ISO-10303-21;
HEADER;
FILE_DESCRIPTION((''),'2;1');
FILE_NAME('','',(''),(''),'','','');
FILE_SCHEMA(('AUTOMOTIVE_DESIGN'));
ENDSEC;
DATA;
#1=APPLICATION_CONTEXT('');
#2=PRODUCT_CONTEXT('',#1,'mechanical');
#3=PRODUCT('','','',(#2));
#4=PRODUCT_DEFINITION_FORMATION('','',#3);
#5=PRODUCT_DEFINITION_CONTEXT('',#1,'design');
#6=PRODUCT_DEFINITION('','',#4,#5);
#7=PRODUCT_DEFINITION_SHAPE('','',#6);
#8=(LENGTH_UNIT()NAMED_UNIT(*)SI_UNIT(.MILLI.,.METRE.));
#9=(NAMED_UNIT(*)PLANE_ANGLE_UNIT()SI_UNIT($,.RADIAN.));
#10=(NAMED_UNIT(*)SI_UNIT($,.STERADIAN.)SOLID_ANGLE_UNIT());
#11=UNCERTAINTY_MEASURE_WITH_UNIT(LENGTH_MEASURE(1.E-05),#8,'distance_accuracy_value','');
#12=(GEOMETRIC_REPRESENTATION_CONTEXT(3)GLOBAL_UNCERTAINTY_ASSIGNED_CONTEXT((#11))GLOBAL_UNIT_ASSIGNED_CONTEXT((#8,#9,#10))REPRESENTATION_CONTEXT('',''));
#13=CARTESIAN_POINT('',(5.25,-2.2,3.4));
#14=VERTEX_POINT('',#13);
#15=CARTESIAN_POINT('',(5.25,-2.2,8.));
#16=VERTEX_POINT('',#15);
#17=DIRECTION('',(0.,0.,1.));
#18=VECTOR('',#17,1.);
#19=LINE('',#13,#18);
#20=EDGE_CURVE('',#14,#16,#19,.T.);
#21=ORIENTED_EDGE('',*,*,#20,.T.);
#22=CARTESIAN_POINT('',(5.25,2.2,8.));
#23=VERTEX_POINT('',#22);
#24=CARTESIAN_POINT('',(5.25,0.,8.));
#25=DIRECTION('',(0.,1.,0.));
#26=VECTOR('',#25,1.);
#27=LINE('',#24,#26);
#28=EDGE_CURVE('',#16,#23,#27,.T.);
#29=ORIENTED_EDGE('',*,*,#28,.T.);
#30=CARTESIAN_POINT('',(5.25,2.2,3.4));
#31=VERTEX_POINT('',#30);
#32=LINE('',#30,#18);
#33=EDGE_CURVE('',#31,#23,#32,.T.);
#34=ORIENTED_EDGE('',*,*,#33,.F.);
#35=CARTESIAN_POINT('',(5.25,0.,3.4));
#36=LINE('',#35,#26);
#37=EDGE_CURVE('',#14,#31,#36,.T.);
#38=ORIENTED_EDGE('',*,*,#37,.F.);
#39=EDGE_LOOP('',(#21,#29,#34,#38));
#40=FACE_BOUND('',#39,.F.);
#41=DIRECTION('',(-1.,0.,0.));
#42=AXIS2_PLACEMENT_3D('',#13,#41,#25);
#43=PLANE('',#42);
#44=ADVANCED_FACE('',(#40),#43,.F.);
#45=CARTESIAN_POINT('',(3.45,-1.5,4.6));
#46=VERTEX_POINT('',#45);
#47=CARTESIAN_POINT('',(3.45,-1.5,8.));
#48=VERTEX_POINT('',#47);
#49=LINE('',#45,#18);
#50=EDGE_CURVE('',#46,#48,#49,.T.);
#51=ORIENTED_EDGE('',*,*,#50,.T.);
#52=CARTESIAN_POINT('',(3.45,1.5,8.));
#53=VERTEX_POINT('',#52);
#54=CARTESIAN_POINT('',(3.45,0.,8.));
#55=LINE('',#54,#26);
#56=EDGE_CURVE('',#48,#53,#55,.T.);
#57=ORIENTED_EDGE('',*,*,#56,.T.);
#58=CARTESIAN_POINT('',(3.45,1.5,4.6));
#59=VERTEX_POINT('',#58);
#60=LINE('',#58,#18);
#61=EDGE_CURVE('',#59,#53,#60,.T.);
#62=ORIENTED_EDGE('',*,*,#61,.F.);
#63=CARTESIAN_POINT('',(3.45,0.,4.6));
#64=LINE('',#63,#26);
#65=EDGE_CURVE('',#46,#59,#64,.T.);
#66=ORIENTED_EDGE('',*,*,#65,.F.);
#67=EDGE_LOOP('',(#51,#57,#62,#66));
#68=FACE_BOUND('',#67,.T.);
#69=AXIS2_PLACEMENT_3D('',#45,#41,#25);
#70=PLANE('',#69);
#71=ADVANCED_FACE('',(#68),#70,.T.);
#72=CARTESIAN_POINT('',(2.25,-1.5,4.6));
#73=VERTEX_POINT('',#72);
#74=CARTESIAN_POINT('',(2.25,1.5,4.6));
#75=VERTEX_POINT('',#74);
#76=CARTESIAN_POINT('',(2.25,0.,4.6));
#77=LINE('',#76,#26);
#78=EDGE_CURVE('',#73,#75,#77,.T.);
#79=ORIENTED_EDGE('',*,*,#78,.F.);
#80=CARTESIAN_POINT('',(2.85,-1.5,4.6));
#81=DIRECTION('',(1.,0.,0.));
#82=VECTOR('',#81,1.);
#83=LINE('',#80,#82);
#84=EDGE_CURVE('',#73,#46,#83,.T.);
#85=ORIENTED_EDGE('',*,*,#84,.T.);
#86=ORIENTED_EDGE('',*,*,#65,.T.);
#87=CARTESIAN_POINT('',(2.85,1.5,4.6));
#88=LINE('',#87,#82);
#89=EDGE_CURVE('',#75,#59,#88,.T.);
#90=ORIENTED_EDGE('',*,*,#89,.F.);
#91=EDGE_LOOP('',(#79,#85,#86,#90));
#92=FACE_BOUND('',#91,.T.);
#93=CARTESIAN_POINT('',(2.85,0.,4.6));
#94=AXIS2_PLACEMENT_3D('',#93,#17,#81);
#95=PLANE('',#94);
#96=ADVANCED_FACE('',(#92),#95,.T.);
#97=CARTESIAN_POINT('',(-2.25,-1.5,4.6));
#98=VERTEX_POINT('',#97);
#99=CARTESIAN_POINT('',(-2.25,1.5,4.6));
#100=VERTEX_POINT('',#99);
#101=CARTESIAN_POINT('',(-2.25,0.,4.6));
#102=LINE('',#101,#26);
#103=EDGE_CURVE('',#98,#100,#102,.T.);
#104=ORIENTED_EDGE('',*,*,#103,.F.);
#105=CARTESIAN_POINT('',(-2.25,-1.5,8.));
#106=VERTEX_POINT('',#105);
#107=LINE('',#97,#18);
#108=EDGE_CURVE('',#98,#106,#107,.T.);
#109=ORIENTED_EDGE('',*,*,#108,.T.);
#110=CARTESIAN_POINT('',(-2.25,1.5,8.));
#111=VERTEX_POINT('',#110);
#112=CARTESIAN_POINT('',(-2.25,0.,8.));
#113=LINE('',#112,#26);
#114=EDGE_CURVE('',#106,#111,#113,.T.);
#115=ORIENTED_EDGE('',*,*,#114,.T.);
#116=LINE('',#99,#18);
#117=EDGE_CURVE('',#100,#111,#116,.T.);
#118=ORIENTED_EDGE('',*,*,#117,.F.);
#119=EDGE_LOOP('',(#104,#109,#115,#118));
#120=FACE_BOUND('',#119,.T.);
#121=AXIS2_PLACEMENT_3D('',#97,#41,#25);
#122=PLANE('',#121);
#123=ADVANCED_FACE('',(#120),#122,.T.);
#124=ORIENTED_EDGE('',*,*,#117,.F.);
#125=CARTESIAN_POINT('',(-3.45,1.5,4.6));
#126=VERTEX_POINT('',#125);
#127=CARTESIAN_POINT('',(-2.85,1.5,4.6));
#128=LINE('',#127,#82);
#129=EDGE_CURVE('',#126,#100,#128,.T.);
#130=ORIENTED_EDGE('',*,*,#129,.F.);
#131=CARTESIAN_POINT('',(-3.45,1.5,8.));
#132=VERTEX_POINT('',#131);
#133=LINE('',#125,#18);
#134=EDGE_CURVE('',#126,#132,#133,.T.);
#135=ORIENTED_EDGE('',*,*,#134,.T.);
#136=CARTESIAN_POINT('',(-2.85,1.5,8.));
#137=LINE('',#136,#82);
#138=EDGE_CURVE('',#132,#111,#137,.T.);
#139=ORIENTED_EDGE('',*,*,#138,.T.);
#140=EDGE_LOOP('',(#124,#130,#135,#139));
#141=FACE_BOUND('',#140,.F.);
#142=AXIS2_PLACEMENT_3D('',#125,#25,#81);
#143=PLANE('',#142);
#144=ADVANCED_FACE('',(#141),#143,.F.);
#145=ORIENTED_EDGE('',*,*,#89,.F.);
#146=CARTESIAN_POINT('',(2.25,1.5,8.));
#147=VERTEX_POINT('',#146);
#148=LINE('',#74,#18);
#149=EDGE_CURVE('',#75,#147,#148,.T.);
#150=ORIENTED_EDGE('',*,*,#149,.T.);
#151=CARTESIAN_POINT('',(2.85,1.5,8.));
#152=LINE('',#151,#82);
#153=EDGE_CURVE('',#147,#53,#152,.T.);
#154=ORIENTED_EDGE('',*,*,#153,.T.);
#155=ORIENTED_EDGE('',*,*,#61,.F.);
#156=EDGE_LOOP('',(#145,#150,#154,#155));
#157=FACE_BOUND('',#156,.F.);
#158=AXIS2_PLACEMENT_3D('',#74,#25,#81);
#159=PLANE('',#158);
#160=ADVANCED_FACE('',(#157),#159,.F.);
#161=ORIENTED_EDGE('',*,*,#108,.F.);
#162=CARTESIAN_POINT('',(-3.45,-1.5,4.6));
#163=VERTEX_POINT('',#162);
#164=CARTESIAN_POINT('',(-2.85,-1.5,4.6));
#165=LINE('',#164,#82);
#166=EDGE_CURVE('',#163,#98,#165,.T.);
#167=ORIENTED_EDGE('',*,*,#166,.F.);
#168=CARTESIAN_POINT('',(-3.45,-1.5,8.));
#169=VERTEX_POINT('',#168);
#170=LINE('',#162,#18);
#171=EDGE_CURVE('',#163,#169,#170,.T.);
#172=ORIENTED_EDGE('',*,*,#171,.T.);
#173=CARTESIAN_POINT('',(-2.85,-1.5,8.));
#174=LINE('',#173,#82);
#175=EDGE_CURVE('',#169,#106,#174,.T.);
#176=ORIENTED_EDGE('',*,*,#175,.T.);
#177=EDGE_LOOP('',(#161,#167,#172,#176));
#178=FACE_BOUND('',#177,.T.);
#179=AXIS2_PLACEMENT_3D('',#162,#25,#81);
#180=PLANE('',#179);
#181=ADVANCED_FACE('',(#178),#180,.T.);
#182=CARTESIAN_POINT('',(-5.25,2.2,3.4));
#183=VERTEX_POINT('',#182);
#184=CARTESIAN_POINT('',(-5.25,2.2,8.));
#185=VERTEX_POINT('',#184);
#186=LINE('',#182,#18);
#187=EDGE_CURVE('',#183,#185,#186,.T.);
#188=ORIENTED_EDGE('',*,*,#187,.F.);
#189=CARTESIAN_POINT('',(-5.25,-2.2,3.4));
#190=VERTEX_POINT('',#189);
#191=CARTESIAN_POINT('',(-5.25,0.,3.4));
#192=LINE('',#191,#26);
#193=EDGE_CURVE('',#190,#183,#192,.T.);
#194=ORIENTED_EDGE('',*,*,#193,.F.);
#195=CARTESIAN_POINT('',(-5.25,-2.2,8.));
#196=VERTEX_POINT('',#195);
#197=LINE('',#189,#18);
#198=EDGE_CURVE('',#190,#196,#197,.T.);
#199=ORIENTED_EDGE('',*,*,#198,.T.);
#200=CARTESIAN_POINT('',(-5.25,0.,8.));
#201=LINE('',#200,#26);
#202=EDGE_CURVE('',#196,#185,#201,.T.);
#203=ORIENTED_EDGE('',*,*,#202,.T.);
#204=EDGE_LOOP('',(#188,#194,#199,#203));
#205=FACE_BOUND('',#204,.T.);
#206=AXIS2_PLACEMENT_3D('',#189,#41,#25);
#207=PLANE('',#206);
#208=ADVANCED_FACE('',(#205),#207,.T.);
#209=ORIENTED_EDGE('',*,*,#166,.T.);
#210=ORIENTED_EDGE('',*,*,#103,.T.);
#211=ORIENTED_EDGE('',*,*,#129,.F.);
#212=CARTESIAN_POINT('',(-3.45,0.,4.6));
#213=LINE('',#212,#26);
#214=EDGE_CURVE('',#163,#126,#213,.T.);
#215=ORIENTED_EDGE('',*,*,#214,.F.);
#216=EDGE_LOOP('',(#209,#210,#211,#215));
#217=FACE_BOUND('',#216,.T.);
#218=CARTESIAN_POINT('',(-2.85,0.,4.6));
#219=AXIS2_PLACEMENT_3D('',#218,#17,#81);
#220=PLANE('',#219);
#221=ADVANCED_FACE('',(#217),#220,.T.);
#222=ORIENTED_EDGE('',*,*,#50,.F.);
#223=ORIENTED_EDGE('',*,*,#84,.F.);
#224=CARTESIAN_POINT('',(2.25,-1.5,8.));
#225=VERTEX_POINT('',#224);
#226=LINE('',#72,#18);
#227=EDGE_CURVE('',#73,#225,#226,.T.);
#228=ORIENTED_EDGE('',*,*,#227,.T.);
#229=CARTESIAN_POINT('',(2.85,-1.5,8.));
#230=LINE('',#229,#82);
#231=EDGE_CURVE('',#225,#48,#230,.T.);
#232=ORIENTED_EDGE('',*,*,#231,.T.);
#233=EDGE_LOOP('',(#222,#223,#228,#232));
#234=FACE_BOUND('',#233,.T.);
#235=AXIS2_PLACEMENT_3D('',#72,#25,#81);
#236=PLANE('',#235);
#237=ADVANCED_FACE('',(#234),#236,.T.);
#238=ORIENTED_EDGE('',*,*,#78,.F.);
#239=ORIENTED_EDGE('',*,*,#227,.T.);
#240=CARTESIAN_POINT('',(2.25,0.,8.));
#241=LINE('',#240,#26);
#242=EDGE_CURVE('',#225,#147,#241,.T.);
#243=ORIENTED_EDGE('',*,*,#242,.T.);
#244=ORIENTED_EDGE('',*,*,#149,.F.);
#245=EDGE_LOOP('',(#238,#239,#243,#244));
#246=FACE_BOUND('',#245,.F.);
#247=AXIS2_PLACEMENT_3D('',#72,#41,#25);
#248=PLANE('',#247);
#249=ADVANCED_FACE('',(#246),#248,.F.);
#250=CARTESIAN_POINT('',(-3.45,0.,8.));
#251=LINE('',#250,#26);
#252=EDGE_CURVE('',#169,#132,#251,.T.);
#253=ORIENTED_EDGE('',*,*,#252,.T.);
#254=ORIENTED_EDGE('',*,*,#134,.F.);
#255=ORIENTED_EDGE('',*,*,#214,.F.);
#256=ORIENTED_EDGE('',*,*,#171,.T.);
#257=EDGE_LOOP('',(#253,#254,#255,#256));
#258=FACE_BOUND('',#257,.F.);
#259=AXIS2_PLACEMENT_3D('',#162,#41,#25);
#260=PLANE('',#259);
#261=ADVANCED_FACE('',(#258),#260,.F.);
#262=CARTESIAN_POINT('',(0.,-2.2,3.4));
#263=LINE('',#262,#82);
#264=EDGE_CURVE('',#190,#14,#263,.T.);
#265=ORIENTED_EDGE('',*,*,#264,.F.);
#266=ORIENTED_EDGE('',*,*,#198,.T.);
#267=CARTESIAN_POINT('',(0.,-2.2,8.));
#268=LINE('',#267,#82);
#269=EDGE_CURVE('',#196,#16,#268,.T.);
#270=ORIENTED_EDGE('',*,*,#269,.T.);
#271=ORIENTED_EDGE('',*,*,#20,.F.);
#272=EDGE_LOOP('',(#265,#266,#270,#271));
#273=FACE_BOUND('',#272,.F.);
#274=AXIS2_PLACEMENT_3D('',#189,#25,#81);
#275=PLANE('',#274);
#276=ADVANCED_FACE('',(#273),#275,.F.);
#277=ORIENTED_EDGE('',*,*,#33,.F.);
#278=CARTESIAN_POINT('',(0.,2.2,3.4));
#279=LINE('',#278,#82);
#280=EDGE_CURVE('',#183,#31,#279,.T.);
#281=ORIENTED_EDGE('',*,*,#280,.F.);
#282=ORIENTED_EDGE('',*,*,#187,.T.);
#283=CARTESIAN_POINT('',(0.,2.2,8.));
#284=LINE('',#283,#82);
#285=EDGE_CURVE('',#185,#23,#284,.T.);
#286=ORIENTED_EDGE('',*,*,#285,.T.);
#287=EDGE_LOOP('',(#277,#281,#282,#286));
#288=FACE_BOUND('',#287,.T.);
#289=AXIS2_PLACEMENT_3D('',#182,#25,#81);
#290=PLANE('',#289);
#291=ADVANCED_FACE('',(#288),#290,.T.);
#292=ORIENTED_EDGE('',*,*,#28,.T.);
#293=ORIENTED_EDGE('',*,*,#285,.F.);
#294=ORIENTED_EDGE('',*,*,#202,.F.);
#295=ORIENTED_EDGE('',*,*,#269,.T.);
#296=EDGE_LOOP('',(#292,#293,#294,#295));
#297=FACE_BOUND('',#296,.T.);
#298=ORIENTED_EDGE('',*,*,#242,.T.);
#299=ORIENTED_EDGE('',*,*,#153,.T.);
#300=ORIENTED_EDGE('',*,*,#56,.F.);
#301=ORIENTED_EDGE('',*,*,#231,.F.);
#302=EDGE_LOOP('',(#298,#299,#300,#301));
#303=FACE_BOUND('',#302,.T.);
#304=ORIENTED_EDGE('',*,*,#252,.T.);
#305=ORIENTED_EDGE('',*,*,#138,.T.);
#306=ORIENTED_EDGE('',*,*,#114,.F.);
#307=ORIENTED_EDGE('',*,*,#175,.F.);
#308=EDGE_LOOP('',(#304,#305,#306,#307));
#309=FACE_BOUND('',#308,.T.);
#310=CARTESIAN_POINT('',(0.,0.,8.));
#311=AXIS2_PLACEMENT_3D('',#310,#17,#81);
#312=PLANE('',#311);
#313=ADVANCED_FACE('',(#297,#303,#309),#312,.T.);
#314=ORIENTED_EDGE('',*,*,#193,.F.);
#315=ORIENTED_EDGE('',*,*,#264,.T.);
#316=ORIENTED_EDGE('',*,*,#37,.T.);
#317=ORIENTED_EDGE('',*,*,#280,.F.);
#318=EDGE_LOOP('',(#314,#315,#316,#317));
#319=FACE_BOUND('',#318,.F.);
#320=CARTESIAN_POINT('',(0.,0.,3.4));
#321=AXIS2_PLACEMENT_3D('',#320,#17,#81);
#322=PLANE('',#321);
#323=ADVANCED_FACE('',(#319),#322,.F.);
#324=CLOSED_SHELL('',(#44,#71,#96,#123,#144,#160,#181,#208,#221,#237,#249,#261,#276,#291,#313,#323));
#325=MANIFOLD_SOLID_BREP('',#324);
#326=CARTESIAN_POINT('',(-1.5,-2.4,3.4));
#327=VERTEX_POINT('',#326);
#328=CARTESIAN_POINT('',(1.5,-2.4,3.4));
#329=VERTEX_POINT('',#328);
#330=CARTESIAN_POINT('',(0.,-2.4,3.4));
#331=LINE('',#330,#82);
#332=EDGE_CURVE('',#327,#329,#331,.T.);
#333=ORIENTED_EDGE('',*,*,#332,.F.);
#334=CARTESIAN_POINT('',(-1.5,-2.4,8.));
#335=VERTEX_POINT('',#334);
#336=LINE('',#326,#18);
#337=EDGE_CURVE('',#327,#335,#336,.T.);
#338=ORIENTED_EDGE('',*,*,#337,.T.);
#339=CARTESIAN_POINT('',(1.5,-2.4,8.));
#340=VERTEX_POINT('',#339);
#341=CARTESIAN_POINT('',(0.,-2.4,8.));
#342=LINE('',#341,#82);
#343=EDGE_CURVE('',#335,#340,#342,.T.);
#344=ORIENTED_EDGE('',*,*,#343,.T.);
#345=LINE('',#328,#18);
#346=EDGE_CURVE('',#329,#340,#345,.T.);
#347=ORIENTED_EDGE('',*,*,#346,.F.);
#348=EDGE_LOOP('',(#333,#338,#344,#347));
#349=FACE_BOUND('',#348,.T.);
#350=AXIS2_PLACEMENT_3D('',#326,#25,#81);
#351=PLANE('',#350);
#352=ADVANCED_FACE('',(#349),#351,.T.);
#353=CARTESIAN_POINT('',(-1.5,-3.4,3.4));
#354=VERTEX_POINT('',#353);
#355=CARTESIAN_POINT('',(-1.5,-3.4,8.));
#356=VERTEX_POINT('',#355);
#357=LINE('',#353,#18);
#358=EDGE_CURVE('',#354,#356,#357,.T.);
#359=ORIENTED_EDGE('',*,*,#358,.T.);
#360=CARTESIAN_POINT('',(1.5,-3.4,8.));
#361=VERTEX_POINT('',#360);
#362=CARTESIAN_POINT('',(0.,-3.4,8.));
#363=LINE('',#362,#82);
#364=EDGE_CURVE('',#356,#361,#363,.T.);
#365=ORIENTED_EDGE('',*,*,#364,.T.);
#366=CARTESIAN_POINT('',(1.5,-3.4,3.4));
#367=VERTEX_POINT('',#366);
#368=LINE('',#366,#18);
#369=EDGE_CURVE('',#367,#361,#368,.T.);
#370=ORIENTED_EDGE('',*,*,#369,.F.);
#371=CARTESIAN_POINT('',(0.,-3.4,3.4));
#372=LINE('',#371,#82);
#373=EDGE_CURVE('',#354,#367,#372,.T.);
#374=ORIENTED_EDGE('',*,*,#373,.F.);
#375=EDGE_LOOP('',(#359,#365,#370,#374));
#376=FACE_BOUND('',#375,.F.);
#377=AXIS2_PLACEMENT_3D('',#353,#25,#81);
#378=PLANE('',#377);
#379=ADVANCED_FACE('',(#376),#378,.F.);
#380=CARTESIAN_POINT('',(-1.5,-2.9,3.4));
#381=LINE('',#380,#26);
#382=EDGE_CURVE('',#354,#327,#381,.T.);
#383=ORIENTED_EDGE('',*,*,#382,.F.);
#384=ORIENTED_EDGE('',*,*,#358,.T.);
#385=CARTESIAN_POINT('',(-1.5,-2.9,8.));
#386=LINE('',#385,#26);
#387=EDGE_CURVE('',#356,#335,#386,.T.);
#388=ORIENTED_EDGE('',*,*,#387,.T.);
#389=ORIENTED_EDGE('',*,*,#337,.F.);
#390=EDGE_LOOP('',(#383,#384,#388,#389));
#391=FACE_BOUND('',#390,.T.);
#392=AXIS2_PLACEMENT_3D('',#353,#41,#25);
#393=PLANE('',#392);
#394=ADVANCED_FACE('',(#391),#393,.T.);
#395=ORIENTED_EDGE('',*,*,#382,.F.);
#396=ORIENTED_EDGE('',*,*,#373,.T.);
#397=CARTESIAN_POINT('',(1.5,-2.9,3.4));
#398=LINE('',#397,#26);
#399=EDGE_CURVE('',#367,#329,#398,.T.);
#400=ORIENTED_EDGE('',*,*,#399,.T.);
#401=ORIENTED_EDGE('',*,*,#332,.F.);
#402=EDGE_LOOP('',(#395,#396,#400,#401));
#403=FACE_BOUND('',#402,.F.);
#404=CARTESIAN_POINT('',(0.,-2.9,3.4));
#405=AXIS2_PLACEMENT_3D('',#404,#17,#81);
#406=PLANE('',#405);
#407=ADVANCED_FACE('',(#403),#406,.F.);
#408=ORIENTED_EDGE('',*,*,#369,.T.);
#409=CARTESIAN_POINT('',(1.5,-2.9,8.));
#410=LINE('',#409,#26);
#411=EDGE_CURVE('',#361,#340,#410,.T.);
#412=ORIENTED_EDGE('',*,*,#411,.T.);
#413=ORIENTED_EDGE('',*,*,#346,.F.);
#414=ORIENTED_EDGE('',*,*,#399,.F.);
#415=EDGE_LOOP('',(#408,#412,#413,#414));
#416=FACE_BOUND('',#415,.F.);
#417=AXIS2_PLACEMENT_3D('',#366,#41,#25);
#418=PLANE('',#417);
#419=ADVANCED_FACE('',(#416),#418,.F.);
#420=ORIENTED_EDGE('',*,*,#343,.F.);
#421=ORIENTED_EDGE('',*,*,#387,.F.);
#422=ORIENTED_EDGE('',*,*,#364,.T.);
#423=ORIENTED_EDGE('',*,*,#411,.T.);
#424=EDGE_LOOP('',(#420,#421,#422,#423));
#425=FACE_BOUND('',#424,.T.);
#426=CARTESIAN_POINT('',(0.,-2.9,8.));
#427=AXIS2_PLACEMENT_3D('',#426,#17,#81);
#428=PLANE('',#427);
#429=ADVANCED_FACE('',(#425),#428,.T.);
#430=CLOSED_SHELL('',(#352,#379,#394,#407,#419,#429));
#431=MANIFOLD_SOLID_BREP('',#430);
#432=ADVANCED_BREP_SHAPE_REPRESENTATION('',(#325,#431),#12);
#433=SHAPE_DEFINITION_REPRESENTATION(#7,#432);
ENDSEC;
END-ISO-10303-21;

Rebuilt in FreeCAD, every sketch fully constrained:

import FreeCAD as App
import Part
import Sketcher
from FreeCAD import Vector
Q = App.Units.Quantity

doc = App.newDocument("Part")
body = doc.addObject("PartDesign::Body", "Body")

sketch1 = body.newObject("Sketcher::SketchObject", "Sketch")
sketch1.AttachmentSupport = (doc.getObject("XY_Plane"), [""])
sketch1.MapMode = "FlatFace"
sketch1.AttachmentOffset = App.Placement(Vector(0, 0, 4.6), App.Rotation())
sketch1.addGeometry([
    Part.LineSegment(Vector(-3.45, 1.5, 0), Vector(-3.45, -1.5, 0)),
    Part.LineSegment(Vector(-3.45, -1.5, 0), Vector(-2.25, -1.5, 0)),
    Part.LineSegment(Vector(-2.25, -1.5, 0), Vector(-2.25, 1.5, 0)),
    Part.LineSegment(Vector(-2.25, 1.5, 0), Vector(-3.45, 1.5, 0)),
], False)
sketch1.addConstraint([
    Sketcher.Constraint("Coincident", 0, 2, 1, 1),
    Sketcher.Constraint("Coincident", 1, 2, 2, 1),
    Sketcher.Constraint("Coincident", 2, 2, 3, 1),
    Sketcher.Constraint("Coincident", 3, 2, 0, 1),
    Sketcher.Constraint("Vertical", 0),
    Sketcher.Constraint("Horizontal", 1),
    Sketcher.Constraint("Vertical", 2),
    Sketcher.Constraint("Horizontal", 3),
    Sketcher.Constraint("DistanceY", 0, 2, 0, 1, Q("3 mm")),
    Sketcher.Constraint("DistanceX", 1, 1, 1, 2, Q("1.2 mm")),
    Sketcher.Constraint("DistanceY", 0, 2, -1, 1, Q("1.5 mm")),
    Sketcher.Constraint("DistanceX", 0, 2, -1, 1, Q("3.45 mm")),
])
pad1 = body.newObject("PartDesign::Pad", "Pad")
pad1.Profile = sketch1
pad1.Length = 3.4
body2 = doc.addObject("PartDesign::Body", "Body001")
body2.AllowCompound = True

sketch2 = body2.newObject("Sketcher::SketchObject", "Sketch001")
sketch2.AttachmentSupport = (doc.getObject("XY_Plane001"), [""])
sketch2.MapMode = "FlatFace"
sketch2.AttachmentOffset = App.Placement(Vector(0, 0, 4.6), App.Rotation())
sketch2.addGeometry([
    Part.LineSegment(Vector(2.25, 1.5, 0), Vector(2.25, -1.5, 0)),
    Part.LineSegment(Vector(2.25, -1.5, 0), Vector(3.45, -1.5, 0)),
    Part.LineSegment(Vector(3.45, -1.5, 0), Vector(3.45, 1.5, 0)),
    Part.LineSegment(Vector(3.45, 1.5, 0), Vector(2.25, 1.5, 0)),
], False)
sketch2.addConstraint([
    Sketcher.Constraint("Coincident", 0, 2, 1, 1),
    Sketcher.Constraint("Coincident", 1, 2, 2, 1),
    Sketcher.Constraint("Coincident", 2, 2, 3, 1),
    Sketcher.Constraint("Coincident", 3, 2, 0, 1),
    Sketcher.Constraint("Vertical", 0),
    Sketcher.Constraint("Horizontal", 1),
    Sketcher.Constraint("Vertical", 2),
    Sketcher.Constraint("Horizontal", 3),
    Sketcher.Constraint("DistanceY", 0, 2, 0, 1, Q("3 mm")),
    Sketcher.Constraint("DistanceX", 1, 1, 1, 2, Q("1.2 mm")),
    Sketcher.Constraint("DistanceY", 0, 2, -1, 1, Q("1.5 mm")),
    Sketcher.Constraint("DistanceX", -1, 1, 0, 2, Q("2.25 mm")),
])
pad2 = body2.newObject("PartDesign::Pad", "Pad001")
pad2.Profile = sketch2
pad2.Length = 3.4
doc.recompute()

boolean = body2.newObject("PartDesign::Boolean", "Boolean")
boolean.Type = "Fuse"
boolean.addObjects([body])
body3 = doc.addObject("PartDesign::Body", "Body002")

sketch3 = body3.newObject("Sketcher::SketchObject", "Sketch002")
sketch3.AttachmentSupport = (doc.getObject("XY_Plane002"), [""])
sketch3.MapMode = "FlatFace"
sketch3.AttachmentOffset = App.Placement(Vector(0, 0, 3.4), App.Rotation())
sketch3.addGeometry([
    Part.LineSegment(Vector(-5.25, 2.2, 0), Vector(-5.25, -2.2, 0)),
    Part.LineSegment(Vector(-5.25, -2.2, 0), Vector(5.25, -2.2, 0)),
    Part.LineSegment(Vector(5.25, -2.2, 0), Vector(5.25, 2.2, 0)),
    Part.LineSegment(Vector(5.25, 2.2, 0), Vector(-5.25, 2.2, 0)),
], False)
sketch3.addConstraint([
    Sketcher.Constraint("Coincident", 0, 2, 1, 1),
    Sketcher.Constraint("Coincident", 1, 2, 2, 1),
    Sketcher.Constraint("Coincident", 2, 2, 3, 1),
    Sketcher.Constraint("Coincident", 3, 2, 0, 1),
    Sketcher.Constraint("Vertical", 0),
    Sketcher.Constraint("Horizontal", 1),
    Sketcher.Constraint("Vertical", 2),
    Sketcher.Constraint("Horizontal", 3),
    Sketcher.Constraint("Symmetric", 0, 2, 2, 2, -1, 1),
    Sketcher.Constraint("DistanceX", 1, 1, 1, 2, Q("10.5 mm")),
    Sketcher.Constraint("DistanceY", 0, 2, 0, 1, Q("4.4 mm")),
])
pad3 = body3.newObject("PartDesign::Pad", "Pad002")
pad3.Profile = sketch3
pad3.Length = 4.6
body4 = doc.addObject("PartDesign::Body", "Body003")
body4.AllowCompound = True

sketch4 = body4.newObject("Sketcher::SketchObject", "Sketch003")
sketch4.AttachmentSupport = (doc.getObject("XY_Plane003"), [""])
sketch4.MapMode = "FlatFace"
sketch4.AttachmentOffset = App.Placement(Vector(0, 0, 3.4), App.Rotation())
sketch4.addGeometry([
    Part.LineSegment(Vector(-1.5, -2.4, 0), Vector(-1.5, -3.4, 0)),
    Part.LineSegment(Vector(-1.5, -3.4, 0), Vector(1.5, -3.4, 0)),
    Part.LineSegment(Vector(1.5, -3.4, 0), Vector(1.5, -2.4, 0)),
    Part.LineSegment(Vector(1.5, -2.4, 0), Vector(-1.5, -2.4, 0)),
], False)
sketch4.addConstraint([
    Sketcher.Constraint("Coincident", 0, 2, 1, 1),
    Sketcher.Constraint("Coincident", 1, 2, 2, 1),
    Sketcher.Constraint("Coincident", 2, 2, 3, 1),
    Sketcher.Constraint("Coincident", 3, 2, 0, 1),
    Sketcher.Constraint("Vertical", 0),
    Sketcher.Constraint("Horizontal", 1),
    Sketcher.Constraint("Vertical", 2),
    Sketcher.Constraint("Horizontal", 3),
    Sketcher.Constraint("DistanceX", 1, 1, 1, 2, Q("3 mm")),
    Sketcher.Constraint("DistanceY", 0, 2, 0, 1, Q("1 mm")),
    Sketcher.Constraint("DistanceX", 0, 2, -1, 1, Q("1.5 mm")),
    Sketcher.Constraint("DistanceY", 0, 2, -1, 1, Q("3.4 mm")),
])
pad4 = body4.newObject("PartDesign::Pad", "Pad003")
pad4.Profile = sketch4
pad4.Length = 4.6
doc.recompute()

boolean2 = body4.newObject("PartDesign::Boolean", "Boolean001")
boolean2.Type = "Fuse"
boolean2.addObjects([body3])
doc.recompute()

boolean3 = body4.newObject("PartDesign::Boolean", "Boolean002")
boolean3.Type = "Cut"
boolean3.addObjects([body2])

doc.recompute()
